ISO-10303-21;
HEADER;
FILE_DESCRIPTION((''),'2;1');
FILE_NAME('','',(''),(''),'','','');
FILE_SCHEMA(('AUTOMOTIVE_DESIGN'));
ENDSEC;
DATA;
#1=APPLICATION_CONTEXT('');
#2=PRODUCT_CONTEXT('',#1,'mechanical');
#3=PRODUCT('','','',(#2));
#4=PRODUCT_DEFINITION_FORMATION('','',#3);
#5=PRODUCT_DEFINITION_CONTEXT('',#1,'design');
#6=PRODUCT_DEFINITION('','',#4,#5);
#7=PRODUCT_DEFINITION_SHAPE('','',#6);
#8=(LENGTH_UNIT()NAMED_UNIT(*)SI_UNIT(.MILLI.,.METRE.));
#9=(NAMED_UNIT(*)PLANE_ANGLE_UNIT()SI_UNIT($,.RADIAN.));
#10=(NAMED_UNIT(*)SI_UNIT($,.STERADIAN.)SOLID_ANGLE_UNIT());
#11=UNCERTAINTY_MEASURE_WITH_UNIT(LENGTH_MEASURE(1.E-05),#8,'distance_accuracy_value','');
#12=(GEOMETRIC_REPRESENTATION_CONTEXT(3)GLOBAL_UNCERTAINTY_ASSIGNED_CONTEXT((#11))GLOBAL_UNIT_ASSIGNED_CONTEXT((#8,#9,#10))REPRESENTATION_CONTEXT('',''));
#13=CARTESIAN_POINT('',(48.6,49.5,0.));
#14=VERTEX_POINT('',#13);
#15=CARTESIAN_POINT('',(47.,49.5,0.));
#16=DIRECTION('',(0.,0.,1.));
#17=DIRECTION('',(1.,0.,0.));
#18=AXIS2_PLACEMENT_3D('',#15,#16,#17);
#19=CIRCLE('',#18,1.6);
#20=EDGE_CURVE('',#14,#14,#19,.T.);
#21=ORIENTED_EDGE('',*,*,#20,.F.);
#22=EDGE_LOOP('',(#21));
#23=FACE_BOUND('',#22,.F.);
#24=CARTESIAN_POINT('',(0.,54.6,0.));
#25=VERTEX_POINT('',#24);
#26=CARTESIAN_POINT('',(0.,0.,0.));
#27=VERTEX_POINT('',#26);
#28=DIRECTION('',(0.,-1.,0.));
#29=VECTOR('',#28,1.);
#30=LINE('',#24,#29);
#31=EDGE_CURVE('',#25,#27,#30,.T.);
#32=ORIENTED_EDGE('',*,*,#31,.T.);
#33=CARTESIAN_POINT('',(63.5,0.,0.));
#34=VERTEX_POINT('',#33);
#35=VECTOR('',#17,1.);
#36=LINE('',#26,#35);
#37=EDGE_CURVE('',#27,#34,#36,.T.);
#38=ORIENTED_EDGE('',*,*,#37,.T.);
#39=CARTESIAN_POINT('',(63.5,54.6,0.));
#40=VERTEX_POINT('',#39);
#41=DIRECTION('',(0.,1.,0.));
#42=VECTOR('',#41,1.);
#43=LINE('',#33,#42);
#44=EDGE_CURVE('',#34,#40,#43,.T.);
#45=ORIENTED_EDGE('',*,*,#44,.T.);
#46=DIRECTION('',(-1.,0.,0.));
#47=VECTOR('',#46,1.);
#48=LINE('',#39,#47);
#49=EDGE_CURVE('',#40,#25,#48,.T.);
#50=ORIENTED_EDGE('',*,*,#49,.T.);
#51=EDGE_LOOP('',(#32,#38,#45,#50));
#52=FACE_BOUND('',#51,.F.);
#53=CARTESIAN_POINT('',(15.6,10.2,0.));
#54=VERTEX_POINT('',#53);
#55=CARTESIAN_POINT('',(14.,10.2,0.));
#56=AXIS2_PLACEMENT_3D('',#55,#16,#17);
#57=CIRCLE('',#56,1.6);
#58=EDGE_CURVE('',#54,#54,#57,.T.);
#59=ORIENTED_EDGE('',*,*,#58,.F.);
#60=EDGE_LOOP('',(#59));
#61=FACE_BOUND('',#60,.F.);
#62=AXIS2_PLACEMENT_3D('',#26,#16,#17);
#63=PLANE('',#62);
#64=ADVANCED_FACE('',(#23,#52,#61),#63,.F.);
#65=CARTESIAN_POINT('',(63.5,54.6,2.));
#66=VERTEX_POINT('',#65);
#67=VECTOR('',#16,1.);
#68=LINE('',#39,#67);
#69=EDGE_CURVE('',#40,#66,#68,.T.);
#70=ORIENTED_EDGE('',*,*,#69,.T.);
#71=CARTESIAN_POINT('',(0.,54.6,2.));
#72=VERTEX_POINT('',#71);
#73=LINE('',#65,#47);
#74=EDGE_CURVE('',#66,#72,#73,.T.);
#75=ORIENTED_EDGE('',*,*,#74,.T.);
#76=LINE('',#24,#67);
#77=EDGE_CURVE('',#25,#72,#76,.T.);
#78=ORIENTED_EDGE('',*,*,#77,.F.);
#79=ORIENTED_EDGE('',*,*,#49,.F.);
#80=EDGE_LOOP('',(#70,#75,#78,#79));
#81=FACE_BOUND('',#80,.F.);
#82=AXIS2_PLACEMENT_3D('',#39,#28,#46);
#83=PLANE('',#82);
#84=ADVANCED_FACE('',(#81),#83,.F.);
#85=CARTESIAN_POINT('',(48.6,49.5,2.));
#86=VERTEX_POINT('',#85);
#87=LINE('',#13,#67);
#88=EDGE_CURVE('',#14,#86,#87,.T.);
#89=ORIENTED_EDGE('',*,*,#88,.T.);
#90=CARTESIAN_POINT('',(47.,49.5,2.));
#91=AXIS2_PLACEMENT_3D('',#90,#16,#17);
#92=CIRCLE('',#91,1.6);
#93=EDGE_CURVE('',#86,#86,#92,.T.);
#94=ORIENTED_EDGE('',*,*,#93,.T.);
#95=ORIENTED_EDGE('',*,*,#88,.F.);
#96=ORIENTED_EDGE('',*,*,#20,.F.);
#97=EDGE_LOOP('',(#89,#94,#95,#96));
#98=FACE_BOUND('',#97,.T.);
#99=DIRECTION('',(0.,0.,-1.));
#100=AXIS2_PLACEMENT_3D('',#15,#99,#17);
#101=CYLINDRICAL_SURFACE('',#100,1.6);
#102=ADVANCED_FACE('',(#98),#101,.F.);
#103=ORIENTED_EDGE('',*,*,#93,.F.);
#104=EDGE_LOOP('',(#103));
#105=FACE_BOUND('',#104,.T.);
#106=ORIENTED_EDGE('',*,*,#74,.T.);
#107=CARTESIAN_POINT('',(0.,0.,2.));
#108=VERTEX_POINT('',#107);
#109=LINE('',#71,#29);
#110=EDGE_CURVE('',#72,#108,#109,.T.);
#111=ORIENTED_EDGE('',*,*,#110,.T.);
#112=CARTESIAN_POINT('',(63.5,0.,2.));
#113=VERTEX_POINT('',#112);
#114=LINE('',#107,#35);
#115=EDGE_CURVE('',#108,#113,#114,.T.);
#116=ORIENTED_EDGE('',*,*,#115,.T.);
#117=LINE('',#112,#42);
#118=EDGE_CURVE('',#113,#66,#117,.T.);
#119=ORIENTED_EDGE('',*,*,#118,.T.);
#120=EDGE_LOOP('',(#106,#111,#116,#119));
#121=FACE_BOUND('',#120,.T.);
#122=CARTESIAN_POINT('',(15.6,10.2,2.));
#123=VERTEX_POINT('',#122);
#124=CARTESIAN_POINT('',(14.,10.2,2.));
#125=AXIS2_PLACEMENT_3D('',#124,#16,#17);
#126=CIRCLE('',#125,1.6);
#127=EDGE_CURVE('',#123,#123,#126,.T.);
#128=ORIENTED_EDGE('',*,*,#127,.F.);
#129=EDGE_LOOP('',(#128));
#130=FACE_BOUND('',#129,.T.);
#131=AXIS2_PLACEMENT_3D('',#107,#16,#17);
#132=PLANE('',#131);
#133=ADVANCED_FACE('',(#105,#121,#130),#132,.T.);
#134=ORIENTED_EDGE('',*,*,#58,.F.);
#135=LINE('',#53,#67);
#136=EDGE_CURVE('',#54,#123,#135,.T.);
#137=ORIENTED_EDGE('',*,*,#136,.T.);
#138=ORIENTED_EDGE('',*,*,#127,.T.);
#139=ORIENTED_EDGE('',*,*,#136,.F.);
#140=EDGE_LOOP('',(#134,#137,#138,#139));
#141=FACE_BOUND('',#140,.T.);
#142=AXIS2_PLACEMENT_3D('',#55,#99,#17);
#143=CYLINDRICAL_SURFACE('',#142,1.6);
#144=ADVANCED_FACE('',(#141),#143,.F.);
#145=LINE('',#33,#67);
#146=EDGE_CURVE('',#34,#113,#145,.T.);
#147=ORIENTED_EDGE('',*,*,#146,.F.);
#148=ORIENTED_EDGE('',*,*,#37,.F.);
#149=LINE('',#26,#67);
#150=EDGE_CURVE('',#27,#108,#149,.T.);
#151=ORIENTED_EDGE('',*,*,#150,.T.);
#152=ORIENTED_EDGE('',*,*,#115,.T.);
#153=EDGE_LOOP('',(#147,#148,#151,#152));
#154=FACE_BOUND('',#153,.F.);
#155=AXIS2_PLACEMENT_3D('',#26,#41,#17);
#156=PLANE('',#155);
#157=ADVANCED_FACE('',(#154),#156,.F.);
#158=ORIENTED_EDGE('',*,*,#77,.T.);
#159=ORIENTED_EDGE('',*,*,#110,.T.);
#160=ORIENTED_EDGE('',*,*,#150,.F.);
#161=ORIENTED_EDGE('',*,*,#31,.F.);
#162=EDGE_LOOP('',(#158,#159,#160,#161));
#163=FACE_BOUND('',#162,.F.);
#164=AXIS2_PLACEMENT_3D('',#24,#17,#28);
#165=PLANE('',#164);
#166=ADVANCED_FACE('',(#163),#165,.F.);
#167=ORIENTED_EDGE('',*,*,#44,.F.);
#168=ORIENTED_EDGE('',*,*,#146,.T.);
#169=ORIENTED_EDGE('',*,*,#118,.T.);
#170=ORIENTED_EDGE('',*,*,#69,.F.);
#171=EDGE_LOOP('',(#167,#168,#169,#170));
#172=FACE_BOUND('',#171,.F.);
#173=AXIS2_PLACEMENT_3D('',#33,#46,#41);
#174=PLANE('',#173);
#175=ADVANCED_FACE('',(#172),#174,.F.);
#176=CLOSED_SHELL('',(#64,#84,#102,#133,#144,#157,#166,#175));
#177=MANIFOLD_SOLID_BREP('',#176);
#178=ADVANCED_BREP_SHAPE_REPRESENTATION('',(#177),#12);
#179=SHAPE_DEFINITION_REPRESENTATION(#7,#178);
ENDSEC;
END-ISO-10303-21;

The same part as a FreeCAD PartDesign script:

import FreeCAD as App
import Part
import Sketcher
from FreeCAD import Vector
Q = App.Units.Quantity

doc = App.newDocument("Part")
body = doc.addObject("PartDesign::Body", "Body")

sketch1 = body.newObject("Sketcher::SketchObject", "Sketch")
sketch1.AttachmentSupport = (doc.getObject("XY_Plane"), [""])
sketch1.MapMode = "FlatFace"
sketch1.addGeometry(Part.LineSegment(Vector(0, 54.6, 0), Vector(0, 0, 0)), False)
sketch1.addGeometry(Part.LineSegment(Vector(0, 0, 0), Vector(63.5, 0, 0)), False)
sketch1.addGeometry(Part.LineSegment(Vector(63.5, 0, 0), Vector(63.5, 54.6, 0)), False)
sketch1.addGeometry(Part.LineSegment(Vector(63.5, 54.6, 0), Vector(0, 54.6, 0)), False)
sketch1.addGeometry(Part.Circle(Vector(14, 10.2, 0), Vector(0, 0, 1), 1.6), False)
sketch1.addGeometry(Part.Circle(Vector(47, 49.5, 0), Vector(0, 0, 1), 1.6), False)
sketch1.addConstraint(Sketcher.Constraint("Coincident", 0, 2, 1, 1))
sketch1.addConstraint(Sketcher.Constraint("Coincident", 1, 2, 2, 1))
sketch1.addConstraint(Sketcher.Constraint("Coincident", 2, 2, 3, 1))
sketch1.addConstraint(Sketcher.Constraint("Coincident", 3, 2, 0, 1))
sketch1.addConstraint(Sketcher.Constraint("Vertical", 0))
sketch1.addConstraint(Sketcher.Constraint("Horizontal", 1))
sketch1.addConstraint(Sketcher.Constraint("Vertical", 2))
sketch1.addConstraint(Sketcher.Constraint("Horizontal", 3))
sketch1.addConstraint(Sketcher.Constraint("Coincident", 0, 2, -1, 1))
sketch1.addConstraint(Sketcher.Constraint("Equal", 4, 5))
sketch1.addConstraint(Sketcher.Constraint("Diameter", 4, Q("3.2 mm")))
sketch1.addConstraint(Sketcher.Constraint("DistanceX", 1, 1, 1, 2, Q("63.5 mm")))
sketch1.addConstraint(Sketcher.Constraint("DistanceY", 0, 2, 0, 1, Q("54.6 mm")))
sketch1.addConstraint(Sketcher.Constraint("DistanceX", -1, 1, 4, 3, Q("14 mm")))
sketch1.addConstraint(Sketcher.Constraint("DistanceX", -1, 1, 5, 3, Q("47 mm")))
sketch1.addConstraint(Sketcher.Constraint("DistanceY", -1, 1, 4, 3, Q("10.2 mm")))
sketch1.addConstraint(Sketcher.Constraint("DistanceY", -1, 1, 5, 3, Q("49.5 mm")))
pad1 = body.newObject("PartDesign::Pad", "Pad")
pad1.Profile = sketch1
pad1.Length = 2

doc.recompute()
